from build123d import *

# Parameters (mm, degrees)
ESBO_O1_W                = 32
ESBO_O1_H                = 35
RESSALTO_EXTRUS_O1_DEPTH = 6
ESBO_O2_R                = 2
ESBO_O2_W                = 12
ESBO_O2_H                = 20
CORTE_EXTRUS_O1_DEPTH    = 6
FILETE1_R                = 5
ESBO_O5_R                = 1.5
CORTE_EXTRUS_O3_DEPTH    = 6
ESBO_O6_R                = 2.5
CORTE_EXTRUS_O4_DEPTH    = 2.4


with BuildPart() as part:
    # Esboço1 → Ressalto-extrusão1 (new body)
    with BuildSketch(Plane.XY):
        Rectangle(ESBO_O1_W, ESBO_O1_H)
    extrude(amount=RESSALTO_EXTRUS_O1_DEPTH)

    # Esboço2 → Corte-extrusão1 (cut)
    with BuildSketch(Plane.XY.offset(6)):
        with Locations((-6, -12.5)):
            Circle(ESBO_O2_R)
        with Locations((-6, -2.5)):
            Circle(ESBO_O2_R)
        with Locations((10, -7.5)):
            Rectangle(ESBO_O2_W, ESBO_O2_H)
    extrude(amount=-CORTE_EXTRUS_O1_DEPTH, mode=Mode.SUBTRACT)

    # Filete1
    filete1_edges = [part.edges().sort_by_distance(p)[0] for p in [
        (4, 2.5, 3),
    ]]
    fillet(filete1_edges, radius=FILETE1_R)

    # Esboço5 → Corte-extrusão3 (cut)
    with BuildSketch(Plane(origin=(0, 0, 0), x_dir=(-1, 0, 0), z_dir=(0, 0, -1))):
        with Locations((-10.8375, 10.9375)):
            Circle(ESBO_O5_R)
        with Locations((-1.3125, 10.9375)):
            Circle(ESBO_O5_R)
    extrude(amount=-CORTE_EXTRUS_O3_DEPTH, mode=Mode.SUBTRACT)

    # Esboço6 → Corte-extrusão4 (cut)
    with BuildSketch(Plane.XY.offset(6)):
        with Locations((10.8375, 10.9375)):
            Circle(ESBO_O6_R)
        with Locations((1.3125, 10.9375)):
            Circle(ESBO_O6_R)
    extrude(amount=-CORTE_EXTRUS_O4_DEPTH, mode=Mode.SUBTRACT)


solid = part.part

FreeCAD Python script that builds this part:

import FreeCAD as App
import Part
import Sketcher
from FreeCAD import Vector
Q = App.Units.Quantity


def edges_at(feature, points):
    """Names of the edges that pass closest to the given points."""
    edges = feature.Shape.Edges
    near = lambda p: min(range(len(edges)), key=lambda i: edges[i].distToShape(Part.Vertex(*p))[0])
    return sorted({f"Edge{near(p) + 1}" for p in points})

doc = App.newDocument("Part")
body = doc.addObject("PartDesign::Body", "Body")

# Sketch on XY plane
sketch1 = body.newObject("Sketcher::SketchObject", "Sketch")
sketch1.AttachmentSupport = (doc.getObject("XY_Plane"), [""])
sketch1.MapMode = "FlatFace"
sketch1.addGeometry(Part.LineSegment(Vector(-16, 18, 0), Vector(-16, -18, 0)), False)
sketch1.addGeometry(Part.LineSegment(Vector(-16, -18, 0), Vector(16, -18, 0)), False)
sketch1.addGeometry(Part.LineSegment(Vector(16, -18, 0), Vector(16, 18, 0)), False)
sketch1.addGeometry(Part.LineSegment(Vector(16, 18, 0), Vector(-16, 18, 0)), False)
sketch1.addConstraint(Sketcher.Constraint("Coincident", 0, 2, 1, 1))
sketch1.addConstraint(Sketcher.Constraint("Coincident", 1, 2, 2, 1))
sketch1.addConstraint(Sketcher.Constraint("Coincident", 2, 2, 3, 1))
sketch1.addConstraint(Sketcher.Constraint("Coincident", 3, 2, 0, 1))
sketch1.addConstraint(Sketcher.Constraint("Vertical", 0))
sketch1.addConstraint(Sketcher.Constraint("Horizontal", 1))
sketch1.addConstraint(Sketcher.Constraint("Vertical", 2))
sketch1.addConstraint(Sketcher.Constraint("Horizontal", 3))
sketch1.addConstraint(Sketcher.Constraint("Symmetric", 0, 2, 2, 2, -1, 1))
sketch1.addConstraint(Sketcher.Constraint("DistanceX", 1, 1, 1, 2, Q("32 mm")))
sketch1.addConstraint(Sketcher.Constraint("DistanceY", 0, 2, 0, 1, Q("35 mm")))
pad1 = body.newObject("PartDesign::Pad", "Pad")
pad1.Profile = sketch1
pad1.Length = 6

# Sketch on XY plane
sketch2 = body.newObject("Sketcher::SketchObject", "Sketch001")
sketch2.AttachmentSupport = (doc.getObject("XY_Plane"), [""])
sketch2.MapMode = "FlatFace"
sketch2.AttachmentOffset = App.Placement(Vector(0, 0, 6), App.Rotation())
sketch2.addGeometry(Part.Circle(Vector(-6, -12.5, 0), Vector(0, 0, 1), 2), False)
sketch2.addGeometry(Part.Circle(Vector(-6, -2.5, 0), Vector(0, 0, 1), 2), False)
sketch2.addGeometry(Part.LineSegment(Vector(4, 2.5, 0), Vector(4, -17.5, 0)), False)
sketch2.addGeometry(Part.LineSegment(Vector(4, -17.5, 0), Vector(16, -17.5, 0)), False)
sketch2.addGeometry(Part.LineSegment(Vector(16, -17.5, 0), Vector(16, 2.5, 0)), False)
sketch2.addGeometry(Part.LineSegment(Vector(16, 2.5, 0), Vector(4, 2.5, 0)), False)
sketch2.addConstraint(Sketcher.Constraint("Coincident", 2, 2, 3, 1))
sketch2.addConstraint(Sketcher.Constraint("Coincident", 3, 2, 4, 1))
sketch2.addConstraint(Sketcher.Constraint("Coincident", 4, 2, 5, 1))
sketch2.addConstraint(Sketcher.Constraint("Coincident", 5, 2, 2, 1))
sketch2.addConstraint(Sketcher.Constraint("Vertical", 2))
sketch2.addConstraint(Sketcher.Constraint("Horizontal", 3))
sketch2.addConstraint(Sketcher.Constraint("Vertical", 4))
sketch2.addConstraint(Sketcher.Constraint("Horizontal", 5))
sketch2.addConstraint(Sketcher.Constraint("Equal", 0, 1))
sketch2.addConstraint(Sketcher.Constraint("Vertical", 0, 3, 1, 3))
sketch2.addConstraint(Sketcher.Constraint("Diameter", 0, Q("4 mm")))
sketch2.addConstraint(Sketcher.Constraint("DistanceX", 3, 1, 3, 2, Q("12 mm")))
sketch2.addConstraint(Sketcher.Constraint("DistanceY", 2, 2, 2, 1, Q("20 mm")))
sketch2.addConstraint(Sketcher.Constraint("DistanceX", 0, 3, -1, 1, Q("6 mm")))
sketch2.addConstraint(Sketcher.Constraint("DistanceX", -1, 1, 2, 2, Q("4 mm")))
sketch2.addConstraint(Sketcher.Constraint("DistanceY", 0, 3, 1, 3, Q("10 mm")))
sketch2.addConstraint(Sketcher.Constraint("DistanceY", 2, 2, 0, 3, Q("5 mm")))
sketch2.addConstraint(Sketcher.Constraint("DistanceY", 0, 3, -1, 1, Q("12.5 mm")))
pocket1 = body.newObject("PartDesign::Pocket", "Pocket")
pocket1.Profile = sketch2
pocket1.Length = 6
doc.recompute()

fillet = body.newObject("PartDesign::Fillet", "Fillet")
fillet.Base = (pocket1, edges_at(pocket1, [(4, 2.5, 3)]))
fillet.Radius = 5

# Sketch on XY plane
sketch3 = body.newObject("Sketcher::SketchObject", "Sketch002")
sketch3.AttachmentSupport = (doc.getObject("XY_Plane"), [""])
sketch3.MapMode = "FlatFace"
sketch3.addGeometry(Part.Circle(Vector(10.8, 10.9, 0), Vector(0, 0, 1), 1.5), False)
sketch3.addGeometry(Part.Circle(Vector(1.3, 10.9, 0), Vector(0, 0, 1), 1.5), False)
sketch3.addConstraint(Sketcher.Constraint("Equal", 0, 1))
sketch3.addConstraint(Sketcher.Constraint("Horizontal", 0, 3, 1, 3))
sketch3.addConstraint(Sketcher.Constraint("Diameter", 0, Q("3 mm")))
sketch3.addConstraint(Sketcher.Constraint("DistanceX", 1, 3, 0, 3, Q("9.525 mm")))
sketch3.addConstraint(Sketcher.Constraint("DistanceX", -1, 1, 0, 3, Q("10.8375 mm")))
sketch3.addConstraint(Sketcher.Constraint("DistanceY", -1, 1, 0, 3, Q("10.9375 mm")))
pocket2 = body.newObject("PartDesign::Pocket", "Pocket001")
pocket2.Profile = sketch3
pocket2.Length = 6
pocket2.Reversed = True

# Sketch on XY plane
sketch4 = body.newObject("Sketcher::SketchObject", "Sketch003")
sketch4.AttachmentSupport = (doc.getObject("XY_Plane"), [""])
sketch4.MapMode = "FlatFace"
sketch4.AttachmentOffset = App.Placement(Vector(0, 0, 6), App.Rotation())
sketch4.addGeometry(Part.Circle(Vector(10.8, 10.9, 0), Vector(0, 0, 1), 2.5), False)
sketch4.addGeometry(Part.Circle(Vector(1.3, 10.9, 0), Vector(0, 0, 1), 2.5), False)
sketch4.addConstraint(Sketcher.Constraint("Equal", 0, 1))
sketch4.addConstraint(Sketcher.Constraint("Horizontal", 0, 3, 1, 3))
sketch4.addConstraint(Sketcher.Constraint("Diameter", 0, Q("5 mm")))
sketch4.addConstraint(Sketcher.Constraint("DistanceX", 1, 3, 0, 3, Q("9.525 mm")))
sketch4.addConstraint(Sketcher.Constraint("DistanceX", -1, 1, 0, 3, Q("10.8375 mm")))
sketch4.addConstraint(Sketcher.Constraint("DistanceY", -1, 1, 0, 3, Q("10.9375 mm")))
pocket3 = body.newObject("PartDesign::Pocket", "Pocket002")
pocket3.Profile = sketch4
pocket3.Length = 2.4

doc.recompute()
